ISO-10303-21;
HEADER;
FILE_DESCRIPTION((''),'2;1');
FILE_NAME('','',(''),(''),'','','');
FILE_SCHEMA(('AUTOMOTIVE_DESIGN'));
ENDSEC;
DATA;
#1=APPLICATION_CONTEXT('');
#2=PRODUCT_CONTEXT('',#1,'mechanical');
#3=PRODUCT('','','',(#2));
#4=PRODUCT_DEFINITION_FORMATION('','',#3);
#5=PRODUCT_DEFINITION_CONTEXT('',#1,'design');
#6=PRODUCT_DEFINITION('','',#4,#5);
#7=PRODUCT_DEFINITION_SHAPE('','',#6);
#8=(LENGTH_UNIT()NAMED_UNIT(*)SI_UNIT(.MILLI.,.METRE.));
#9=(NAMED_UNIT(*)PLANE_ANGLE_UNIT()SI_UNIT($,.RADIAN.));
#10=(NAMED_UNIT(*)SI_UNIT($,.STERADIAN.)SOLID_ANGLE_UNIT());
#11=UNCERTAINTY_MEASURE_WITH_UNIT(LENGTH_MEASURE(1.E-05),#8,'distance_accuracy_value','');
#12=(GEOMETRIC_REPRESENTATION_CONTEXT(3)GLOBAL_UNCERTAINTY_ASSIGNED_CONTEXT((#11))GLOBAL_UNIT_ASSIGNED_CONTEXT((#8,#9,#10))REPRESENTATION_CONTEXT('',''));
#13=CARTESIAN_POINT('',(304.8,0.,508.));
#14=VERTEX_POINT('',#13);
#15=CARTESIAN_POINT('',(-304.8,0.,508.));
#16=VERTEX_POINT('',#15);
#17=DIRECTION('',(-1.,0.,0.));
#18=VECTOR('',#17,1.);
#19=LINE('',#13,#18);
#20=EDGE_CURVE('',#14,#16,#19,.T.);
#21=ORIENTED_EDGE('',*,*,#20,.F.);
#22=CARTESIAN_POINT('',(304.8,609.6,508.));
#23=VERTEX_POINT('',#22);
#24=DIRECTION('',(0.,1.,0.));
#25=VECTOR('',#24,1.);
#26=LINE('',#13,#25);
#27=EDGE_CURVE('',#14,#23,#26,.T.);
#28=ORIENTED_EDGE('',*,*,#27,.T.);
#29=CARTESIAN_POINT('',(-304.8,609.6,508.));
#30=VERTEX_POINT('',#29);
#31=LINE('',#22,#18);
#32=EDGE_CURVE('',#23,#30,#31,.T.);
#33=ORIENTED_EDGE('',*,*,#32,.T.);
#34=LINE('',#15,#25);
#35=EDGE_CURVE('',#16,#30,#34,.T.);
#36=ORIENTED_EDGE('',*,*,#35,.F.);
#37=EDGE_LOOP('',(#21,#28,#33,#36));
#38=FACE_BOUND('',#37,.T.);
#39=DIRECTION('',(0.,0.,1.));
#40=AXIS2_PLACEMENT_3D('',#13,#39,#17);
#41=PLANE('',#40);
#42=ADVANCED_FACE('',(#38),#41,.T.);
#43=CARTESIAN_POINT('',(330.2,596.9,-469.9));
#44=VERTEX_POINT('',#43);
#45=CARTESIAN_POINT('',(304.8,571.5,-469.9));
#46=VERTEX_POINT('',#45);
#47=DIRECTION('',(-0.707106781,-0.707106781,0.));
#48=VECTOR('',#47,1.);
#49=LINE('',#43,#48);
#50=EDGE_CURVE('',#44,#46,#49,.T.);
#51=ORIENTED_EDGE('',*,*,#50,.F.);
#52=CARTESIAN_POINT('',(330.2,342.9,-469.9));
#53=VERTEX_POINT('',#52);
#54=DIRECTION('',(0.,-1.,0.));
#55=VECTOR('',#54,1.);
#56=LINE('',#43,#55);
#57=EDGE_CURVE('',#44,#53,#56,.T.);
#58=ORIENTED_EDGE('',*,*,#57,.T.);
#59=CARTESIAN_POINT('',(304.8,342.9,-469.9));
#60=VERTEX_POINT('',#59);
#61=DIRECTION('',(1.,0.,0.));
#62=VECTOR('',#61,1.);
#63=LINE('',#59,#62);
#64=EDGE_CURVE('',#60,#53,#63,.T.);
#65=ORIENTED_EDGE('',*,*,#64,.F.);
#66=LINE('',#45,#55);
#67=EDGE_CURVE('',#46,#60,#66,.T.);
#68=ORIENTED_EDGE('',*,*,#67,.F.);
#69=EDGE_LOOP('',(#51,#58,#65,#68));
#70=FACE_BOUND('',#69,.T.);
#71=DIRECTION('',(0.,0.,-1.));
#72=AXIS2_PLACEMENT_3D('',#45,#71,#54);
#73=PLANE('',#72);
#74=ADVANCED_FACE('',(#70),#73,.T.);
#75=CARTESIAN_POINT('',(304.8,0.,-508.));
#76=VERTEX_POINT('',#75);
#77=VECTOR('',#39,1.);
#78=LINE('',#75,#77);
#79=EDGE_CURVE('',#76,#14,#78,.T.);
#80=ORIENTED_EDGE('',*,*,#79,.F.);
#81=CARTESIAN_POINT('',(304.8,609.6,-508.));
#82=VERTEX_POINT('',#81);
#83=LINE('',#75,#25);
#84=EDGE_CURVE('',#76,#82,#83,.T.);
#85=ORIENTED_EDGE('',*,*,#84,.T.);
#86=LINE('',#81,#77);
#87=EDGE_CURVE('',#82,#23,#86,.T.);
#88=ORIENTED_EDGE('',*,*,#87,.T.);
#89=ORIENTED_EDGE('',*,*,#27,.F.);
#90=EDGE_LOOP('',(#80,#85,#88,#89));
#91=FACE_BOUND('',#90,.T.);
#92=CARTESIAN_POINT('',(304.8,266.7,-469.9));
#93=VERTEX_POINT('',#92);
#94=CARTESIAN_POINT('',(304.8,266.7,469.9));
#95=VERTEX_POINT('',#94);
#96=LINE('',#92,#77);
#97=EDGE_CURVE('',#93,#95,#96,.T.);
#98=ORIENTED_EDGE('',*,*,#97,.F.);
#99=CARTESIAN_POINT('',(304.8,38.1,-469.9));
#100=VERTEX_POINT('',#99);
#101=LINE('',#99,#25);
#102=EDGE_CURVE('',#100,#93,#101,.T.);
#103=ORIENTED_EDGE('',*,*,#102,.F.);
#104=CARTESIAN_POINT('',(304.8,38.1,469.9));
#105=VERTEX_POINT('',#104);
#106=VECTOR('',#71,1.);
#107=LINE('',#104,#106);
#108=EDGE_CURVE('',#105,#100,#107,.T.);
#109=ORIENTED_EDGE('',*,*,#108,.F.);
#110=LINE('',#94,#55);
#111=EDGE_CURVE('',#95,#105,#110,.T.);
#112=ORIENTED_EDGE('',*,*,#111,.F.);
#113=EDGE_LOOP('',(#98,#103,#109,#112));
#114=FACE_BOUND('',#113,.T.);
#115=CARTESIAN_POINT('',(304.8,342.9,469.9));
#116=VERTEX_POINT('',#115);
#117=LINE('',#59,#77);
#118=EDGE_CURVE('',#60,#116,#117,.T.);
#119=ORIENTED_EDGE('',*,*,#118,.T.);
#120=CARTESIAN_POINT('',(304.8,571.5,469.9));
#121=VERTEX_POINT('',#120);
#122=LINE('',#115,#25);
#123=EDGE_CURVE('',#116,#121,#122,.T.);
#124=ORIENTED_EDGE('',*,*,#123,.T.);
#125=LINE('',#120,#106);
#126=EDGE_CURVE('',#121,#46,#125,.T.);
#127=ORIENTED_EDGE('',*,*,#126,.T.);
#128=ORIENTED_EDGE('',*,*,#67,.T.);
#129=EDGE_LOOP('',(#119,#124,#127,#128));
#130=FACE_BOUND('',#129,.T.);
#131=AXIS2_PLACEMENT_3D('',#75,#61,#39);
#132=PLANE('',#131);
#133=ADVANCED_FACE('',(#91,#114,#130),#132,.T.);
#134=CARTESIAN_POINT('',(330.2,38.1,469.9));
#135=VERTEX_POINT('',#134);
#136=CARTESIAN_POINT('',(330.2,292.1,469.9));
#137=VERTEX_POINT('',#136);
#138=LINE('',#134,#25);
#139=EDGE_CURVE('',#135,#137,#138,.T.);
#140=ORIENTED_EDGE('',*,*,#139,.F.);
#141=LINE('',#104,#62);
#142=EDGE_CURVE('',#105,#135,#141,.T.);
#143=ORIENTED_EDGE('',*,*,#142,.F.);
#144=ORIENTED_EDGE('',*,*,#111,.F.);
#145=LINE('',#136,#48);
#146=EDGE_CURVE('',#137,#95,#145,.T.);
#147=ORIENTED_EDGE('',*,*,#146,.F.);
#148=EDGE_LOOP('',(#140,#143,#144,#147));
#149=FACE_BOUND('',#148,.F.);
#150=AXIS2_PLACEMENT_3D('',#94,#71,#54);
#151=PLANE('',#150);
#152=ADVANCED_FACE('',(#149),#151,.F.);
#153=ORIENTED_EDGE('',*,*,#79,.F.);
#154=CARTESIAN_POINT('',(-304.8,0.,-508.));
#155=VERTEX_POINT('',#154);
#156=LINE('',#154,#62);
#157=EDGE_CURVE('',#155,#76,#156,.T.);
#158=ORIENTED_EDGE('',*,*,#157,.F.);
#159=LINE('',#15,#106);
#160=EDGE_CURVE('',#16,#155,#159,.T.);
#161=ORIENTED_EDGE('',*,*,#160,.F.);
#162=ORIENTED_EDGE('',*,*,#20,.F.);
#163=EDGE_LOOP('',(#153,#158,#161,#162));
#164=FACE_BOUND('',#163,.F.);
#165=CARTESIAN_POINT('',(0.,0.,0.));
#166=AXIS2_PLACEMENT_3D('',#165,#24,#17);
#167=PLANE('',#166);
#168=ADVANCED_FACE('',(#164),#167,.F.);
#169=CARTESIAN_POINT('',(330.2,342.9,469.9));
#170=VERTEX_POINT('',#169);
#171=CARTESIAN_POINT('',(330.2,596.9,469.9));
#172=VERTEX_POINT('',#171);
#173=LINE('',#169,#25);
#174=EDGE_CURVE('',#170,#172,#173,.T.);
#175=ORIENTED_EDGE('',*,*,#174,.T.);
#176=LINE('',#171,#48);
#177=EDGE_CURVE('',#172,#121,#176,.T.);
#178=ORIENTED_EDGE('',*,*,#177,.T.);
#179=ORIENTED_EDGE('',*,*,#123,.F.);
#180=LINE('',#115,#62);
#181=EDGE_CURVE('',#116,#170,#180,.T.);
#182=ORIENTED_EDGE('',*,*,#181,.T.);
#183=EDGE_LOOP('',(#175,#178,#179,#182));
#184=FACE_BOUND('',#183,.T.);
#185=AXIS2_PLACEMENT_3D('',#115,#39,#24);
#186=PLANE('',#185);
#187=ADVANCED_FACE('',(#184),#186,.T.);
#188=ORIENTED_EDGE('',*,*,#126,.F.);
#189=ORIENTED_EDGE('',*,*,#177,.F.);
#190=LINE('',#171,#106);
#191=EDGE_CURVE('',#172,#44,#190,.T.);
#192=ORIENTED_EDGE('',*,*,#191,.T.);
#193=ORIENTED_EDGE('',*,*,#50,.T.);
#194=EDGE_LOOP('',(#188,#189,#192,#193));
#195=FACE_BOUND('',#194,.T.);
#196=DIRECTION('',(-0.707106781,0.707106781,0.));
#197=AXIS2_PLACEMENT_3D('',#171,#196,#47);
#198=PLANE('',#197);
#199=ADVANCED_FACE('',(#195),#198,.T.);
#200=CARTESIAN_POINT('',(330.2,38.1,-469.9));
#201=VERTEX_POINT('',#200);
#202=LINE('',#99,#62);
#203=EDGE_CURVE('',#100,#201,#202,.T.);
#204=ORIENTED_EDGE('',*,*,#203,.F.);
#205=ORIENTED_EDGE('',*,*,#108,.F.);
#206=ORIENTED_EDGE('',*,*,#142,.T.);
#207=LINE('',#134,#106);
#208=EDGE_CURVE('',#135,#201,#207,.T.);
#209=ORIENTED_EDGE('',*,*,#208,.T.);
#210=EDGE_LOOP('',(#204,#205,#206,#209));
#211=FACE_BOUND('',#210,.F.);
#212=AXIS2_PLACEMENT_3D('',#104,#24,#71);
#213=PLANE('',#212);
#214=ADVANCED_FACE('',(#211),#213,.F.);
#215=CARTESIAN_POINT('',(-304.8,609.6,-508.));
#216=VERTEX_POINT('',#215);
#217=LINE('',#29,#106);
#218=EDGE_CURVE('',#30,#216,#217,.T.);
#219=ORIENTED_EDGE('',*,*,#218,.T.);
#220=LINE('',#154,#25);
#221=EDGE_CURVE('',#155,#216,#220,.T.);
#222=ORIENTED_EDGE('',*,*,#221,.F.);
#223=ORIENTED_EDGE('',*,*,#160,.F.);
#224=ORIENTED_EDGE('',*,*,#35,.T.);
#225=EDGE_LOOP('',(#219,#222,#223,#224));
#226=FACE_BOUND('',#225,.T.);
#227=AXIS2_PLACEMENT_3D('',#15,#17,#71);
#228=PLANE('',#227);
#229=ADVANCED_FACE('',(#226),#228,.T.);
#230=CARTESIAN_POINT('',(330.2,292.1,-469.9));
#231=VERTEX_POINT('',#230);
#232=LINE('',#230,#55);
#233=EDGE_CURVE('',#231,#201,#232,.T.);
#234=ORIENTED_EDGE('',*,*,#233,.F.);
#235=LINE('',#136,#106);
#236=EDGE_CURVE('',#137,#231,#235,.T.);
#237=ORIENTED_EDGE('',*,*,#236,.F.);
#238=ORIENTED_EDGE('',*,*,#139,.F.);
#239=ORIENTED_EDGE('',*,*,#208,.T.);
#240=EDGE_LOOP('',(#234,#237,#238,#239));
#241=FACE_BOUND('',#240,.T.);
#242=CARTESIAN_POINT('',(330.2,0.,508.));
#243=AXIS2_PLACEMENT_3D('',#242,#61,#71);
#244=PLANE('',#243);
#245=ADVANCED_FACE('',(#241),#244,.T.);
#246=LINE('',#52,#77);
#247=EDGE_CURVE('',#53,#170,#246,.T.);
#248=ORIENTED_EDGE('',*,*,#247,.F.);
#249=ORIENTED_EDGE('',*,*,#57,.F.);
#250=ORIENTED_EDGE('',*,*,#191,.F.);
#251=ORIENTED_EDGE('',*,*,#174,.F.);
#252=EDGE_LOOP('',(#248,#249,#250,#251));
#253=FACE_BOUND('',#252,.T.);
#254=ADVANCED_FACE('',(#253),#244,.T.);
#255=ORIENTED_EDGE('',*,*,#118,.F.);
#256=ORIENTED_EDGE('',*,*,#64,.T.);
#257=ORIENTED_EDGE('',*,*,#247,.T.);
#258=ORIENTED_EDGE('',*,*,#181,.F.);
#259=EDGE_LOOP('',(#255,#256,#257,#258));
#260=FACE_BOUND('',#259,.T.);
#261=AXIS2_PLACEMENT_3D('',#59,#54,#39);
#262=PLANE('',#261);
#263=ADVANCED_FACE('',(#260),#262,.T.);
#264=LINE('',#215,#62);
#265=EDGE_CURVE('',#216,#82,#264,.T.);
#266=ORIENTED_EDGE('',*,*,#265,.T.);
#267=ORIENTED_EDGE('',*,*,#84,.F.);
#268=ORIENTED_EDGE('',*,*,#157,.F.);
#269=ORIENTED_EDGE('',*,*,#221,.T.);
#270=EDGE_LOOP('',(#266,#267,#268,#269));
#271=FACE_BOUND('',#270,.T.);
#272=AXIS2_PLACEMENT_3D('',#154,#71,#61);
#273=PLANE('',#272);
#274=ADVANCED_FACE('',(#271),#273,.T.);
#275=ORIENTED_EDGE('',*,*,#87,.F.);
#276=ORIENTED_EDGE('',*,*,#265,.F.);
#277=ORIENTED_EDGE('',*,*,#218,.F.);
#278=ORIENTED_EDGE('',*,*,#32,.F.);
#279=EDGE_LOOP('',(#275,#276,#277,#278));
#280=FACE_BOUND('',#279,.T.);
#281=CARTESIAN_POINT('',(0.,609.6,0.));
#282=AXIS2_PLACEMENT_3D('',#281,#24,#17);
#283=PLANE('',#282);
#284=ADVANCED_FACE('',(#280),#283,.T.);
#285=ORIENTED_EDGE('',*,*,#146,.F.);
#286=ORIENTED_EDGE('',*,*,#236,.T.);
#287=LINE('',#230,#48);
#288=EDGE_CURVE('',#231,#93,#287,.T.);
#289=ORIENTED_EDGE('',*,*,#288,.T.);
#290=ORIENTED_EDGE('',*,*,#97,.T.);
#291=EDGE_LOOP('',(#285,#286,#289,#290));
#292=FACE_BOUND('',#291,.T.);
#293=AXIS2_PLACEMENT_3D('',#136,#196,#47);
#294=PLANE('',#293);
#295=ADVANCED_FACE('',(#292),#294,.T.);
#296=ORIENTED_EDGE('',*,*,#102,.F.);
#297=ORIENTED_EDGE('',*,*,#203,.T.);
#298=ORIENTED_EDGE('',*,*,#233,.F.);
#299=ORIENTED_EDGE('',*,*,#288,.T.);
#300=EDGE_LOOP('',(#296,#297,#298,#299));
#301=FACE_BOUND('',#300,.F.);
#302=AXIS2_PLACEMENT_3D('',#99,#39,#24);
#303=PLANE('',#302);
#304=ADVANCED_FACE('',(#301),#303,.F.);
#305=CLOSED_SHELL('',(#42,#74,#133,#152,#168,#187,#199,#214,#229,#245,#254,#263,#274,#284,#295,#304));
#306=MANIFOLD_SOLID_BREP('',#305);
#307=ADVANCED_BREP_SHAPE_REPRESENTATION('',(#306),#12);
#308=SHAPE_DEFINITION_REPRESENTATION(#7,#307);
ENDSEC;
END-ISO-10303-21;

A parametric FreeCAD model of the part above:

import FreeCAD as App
import Part
import Sketcher
from FreeCAD import Vector
Q = App.Units.Quantity

doc = App.newDocument("Part")
body = doc.addObject("PartDesign::Body", "Body")

sketch1 = body.newObject("Sketcher::SketchObject", "Sketch")
sketch1.AttachmentSupport = (doc.getObject("XZ_Plane"), [""])
sketch1.MapMode = "FlatFace"
sketch1.addGeometry(Part.LineSegment(Vector(-305, 508, 0), Vector(305, 508, 0)), False)
sketch1.addGeometry(Part.LineSegment(Vector(305, 508, 0), Vector(305, -508, 0)), False)
sketch1.addGeometry(Part.LineSegment(Vector(305, -508, 0), Vector(-305, -508, 0)), False)
sketch1.addGeometry(Part.LineSegment(Vector(-305, -508, 0), Vector(-305, 508, 0)), False)
sketch1.addConstraint(Sketcher.Constraint("Coincident", 0, 2, 1, 1))
sketch1.addConstraint(Sketcher.Constraint("Coincident", 1, 2, 2, 1))
sketch1.addConstraint(Sketcher.Constraint("Coincident", 2, 2, 3, 1))
sketch1.addConstraint(Sketcher.Constraint("Coincident", 3, 2, 0, 1))
sketch1.addConstraint(Sketcher.Constraint("Horizontal", 0))
sketch1.addConstraint(Sketcher.Constraint("Vertical", 1))
sketch1.addConstraint(Sketcher.Constraint("Horizontal", 2))
sketch1.addConstraint(Sketcher.Constraint("Vertical", 3))
sketch1.addConstraint(Sketcher.Constraint("Symmetric", 0, 2, 2, 2, -1, 1))
sketch1.addConstraint(Sketcher.Constraint("DistanceX", 0, 1, 0, 2, Q("24 in")))
sketch1.addConstraint(Sketcher.Constraint("DistanceY", 1, 2, 1, 1, Q("40 in")))
pad1 = body.newObject("PartDesign::Pad", "Pad")
pad1.Profile = sketch1
pad1.Length = Q("24 in")
pad1.Reversed = True

sketch2 = body.newObject("Sketcher::SketchObject", "Sketch001")
sketch2.AttachmentSupport = (doc.getObject("YZ_Plane"), [""])
sketch2.MapMode = "FlatFace"
sketch2.AttachmentOffset = App.Placement(Vector(0, 0, 12 * 25.4), App.Rotation())
sketch2.addGeometry(Part.LineSegment(Vector(38, -470, 0), Vector(267, -470, 0)), False)
sketch2.addGeometry(Part.LineSegment(Vector(267, -470, 0), Vector(267, 470, 0)), False)
sketch2.addGeometry(Part.LineSegment(Vector(267, 470, 0), Vector(38, 470, 0)), False)
sketch2.addGeometry(Part.LineSegment(Vector(38, 470, 0), Vector(38, -470, 0)), False)
sketch2.addGeometry(Part.LineSegment(Vector(343, 470, 0), Vector(343, -470, 0)), False)
sketch2.addGeometry(Part.LineSegment(Vector(343, -470, 0), Vector(572, -470, 0)), False)
sketch2.addGeometry(Part.LineSegment(Vector(572, -470, 0), Vector(572, 470, 0)), False)
sketch2.addGeometry(Part.LineSegment(Vector(572, 470, 0), Vector(343, 470, 0)), False)
sketch2.addConstraint(Sketcher.Constraint("Coincident", 0, 2, 1, 1))
sketch2.addConstraint(Sketcher.Constraint("Coincident", 1, 2, 2, 1))
sketch2.addConstraint(Sketcher.Constraint("Coincident", 2, 2, 3, 1))
sketch2.addConstraint(Sketcher.Constraint("Coincident", 3, 2, 0, 1))
sketch2.addConstraint(Sketcher.Constraint("Coincident", 4, 2, 5, 1))
sketch2.addConstraint(Sketcher.Constraint("Coincident", 5, 2, 6, 1))
sketch2.addConstraint(Sketcher.Constraint("Coincident", 6, 2, 7, 1))
sketch2.addConstraint(Sketcher.Constraint("Coincident", 7, 2, 4, 1))
sketch2.addConstraint(Sketcher.Constraint("Horizontal", 0))
sketch2.addConstraint(Sketcher.Constraint("Vertical", 1))
sketch2.addConstraint(Sketcher.Constraint("Horizontal", 2))
sketch2.addConstraint(Sketcher.Constraint("Vertical", 3))
sketch2.addConstraint(Sketcher.Constraint("Vertical", 4))
sketch2.addConstraint(Sketcher.Constraint("Horizontal", 5))
sketch2.addConstraint(Sketcher.Constraint("Vertical", 6))
sketch2.addConstraint(Sketcher.Constraint("Horizontal", 7))
sketch2.addConstraint(Sketcher.Constraint("Horizontal", 3, 2, 4, 2))
sketch2.addConstraint(Sketcher.Constraint("Horizontal", 2, 2, 6, 2))
sketch2.addConstraint(Sketcher.Constraint("Equal", 2, 5))
sketch2.addConstraint(Sketcher.Constraint("DistanceX", -1, 1, 2, 2, Q("1.5 in")))
sketch2.addConstraint(Sketcher.Constraint("DistanceX", 0, 1, 0, 2, Q("9 in")))
sketch2.addConstraint(Sketcher.Constraint("DistanceY", 1, 1, 1, 2, Q("37 in")))
sketch2.addConstraint(Sketcher.Constraint("DistanceX", 0, 2, 4, 2, Q("3 in")))
sketch2.addConstraint(Sketcher.Constraint("DistanceY", 0, 2, -1, 1, Q("18.5 in")))
pad2 = body.newObject("PartDesign::Pad", "Pad001")
pad2.Profile = sketch2
pad2.Length = Q("1 in")

sketch3 = body.newObject("Sketcher::SketchObject", "Sketch002")
sketch3.AttachmentSupport = (doc.getObject("XY_Plane"), [""])
sketch3.MapMode = "FlatFace"
sketch3.AttachmentOffset = App.Placement(Vector(0, 0, 18.5 * 25.4), App.Rotation())
sketch3.addGeometry(Part.LineSegment(Vector(330, 597, 0), Vector(305, 572, 0)), False)
sketch3.addGeometry(Part.LineSegment(Vector(305, 572, 0), Vector(330, 572, 0)), False)
sketch3.addGeometry(Part.LineSegment(Vector(330, 572, 0), Vector(330, 597, 0)), False)
sketch3.addGeometry(Part.LineSegment(Vector(330, 292, 0), Vector(305, 267, 0)), False)
sketch3.addGeometry(Part.LineSegment(Vector(305, 267, 0), Vector(330, 267, 0)), False)
sketch3.addGeometry(Part.LineSegment(Vector(330, 267, 0), Vector(330, 292, 0)), False)
sketch3.addConstraint(Sketcher.Constraint("Coincident", 0, 2, 1, 1))
sketch3.addConstraint(Sketcher.Constraint("Coincident", 1, 2, 2, 1))
sketch3.addConstraint(Sketcher.Constraint("Coincident", 2, 2, 0, 1))
sketch3.addConstraint(Sketcher.Constraint("Coincident", 3, 2, 4, 1))
sketch3.addConstraint(Sketcher.Constraint("Coincident", 4, 2, 5, 1))
sketch3.addConstraint(Sketcher.Constraint("Coincident", 5, 2, 3, 1))
sketch3.addConstraint(Sketcher.Constraint("Horizontal", 1))
sketch3.addConstraint(Sketcher.Constraint("Vertical", 2))
sketch3.addConstraint(Sketcher.Constraint("Horizontal", 4))
sketch3.addConstraint(Sketcher.Constraint("Vertical", 5))
sketch3.addConstraint(Sketcher.Constraint("Parallel", 0, 3))
sketch3.addConstraint(Sketcher.Constraint("Vertical", 0, 2, 3, 2))
sketch3.addConstraint(Sketcher.Constraint("Vertical", 2, 2, 4, 2))
sketch3.addConstraint(Sketcher.Constraint("Equal", 4, 2))
sketch3.addConstraint(Sketcher.Constraint("DistanceX", 1, 1, 1, 2, Q("1 in")))
sketch3.addConstraint(Sketcher.Constraint("DistanceX", -1, 1, 0, 2, Q("12 in")))
sketch3.addConstraint(Sketcher.Constraint("DistanceY", 3, 2, 0, 2, Q("12 in")))
sketch3.addConstraint(Sketcher.Constraint("DistanceY", -1, 1, 0, 2, Q("22.5 in")))
pad3 = body.newObject("PartDesign::Pad", "Pad002")
pad3.Profile = sketch3
pad3.Length = Q("37 in")
pad3.Reversed = True

doc.recompute()
